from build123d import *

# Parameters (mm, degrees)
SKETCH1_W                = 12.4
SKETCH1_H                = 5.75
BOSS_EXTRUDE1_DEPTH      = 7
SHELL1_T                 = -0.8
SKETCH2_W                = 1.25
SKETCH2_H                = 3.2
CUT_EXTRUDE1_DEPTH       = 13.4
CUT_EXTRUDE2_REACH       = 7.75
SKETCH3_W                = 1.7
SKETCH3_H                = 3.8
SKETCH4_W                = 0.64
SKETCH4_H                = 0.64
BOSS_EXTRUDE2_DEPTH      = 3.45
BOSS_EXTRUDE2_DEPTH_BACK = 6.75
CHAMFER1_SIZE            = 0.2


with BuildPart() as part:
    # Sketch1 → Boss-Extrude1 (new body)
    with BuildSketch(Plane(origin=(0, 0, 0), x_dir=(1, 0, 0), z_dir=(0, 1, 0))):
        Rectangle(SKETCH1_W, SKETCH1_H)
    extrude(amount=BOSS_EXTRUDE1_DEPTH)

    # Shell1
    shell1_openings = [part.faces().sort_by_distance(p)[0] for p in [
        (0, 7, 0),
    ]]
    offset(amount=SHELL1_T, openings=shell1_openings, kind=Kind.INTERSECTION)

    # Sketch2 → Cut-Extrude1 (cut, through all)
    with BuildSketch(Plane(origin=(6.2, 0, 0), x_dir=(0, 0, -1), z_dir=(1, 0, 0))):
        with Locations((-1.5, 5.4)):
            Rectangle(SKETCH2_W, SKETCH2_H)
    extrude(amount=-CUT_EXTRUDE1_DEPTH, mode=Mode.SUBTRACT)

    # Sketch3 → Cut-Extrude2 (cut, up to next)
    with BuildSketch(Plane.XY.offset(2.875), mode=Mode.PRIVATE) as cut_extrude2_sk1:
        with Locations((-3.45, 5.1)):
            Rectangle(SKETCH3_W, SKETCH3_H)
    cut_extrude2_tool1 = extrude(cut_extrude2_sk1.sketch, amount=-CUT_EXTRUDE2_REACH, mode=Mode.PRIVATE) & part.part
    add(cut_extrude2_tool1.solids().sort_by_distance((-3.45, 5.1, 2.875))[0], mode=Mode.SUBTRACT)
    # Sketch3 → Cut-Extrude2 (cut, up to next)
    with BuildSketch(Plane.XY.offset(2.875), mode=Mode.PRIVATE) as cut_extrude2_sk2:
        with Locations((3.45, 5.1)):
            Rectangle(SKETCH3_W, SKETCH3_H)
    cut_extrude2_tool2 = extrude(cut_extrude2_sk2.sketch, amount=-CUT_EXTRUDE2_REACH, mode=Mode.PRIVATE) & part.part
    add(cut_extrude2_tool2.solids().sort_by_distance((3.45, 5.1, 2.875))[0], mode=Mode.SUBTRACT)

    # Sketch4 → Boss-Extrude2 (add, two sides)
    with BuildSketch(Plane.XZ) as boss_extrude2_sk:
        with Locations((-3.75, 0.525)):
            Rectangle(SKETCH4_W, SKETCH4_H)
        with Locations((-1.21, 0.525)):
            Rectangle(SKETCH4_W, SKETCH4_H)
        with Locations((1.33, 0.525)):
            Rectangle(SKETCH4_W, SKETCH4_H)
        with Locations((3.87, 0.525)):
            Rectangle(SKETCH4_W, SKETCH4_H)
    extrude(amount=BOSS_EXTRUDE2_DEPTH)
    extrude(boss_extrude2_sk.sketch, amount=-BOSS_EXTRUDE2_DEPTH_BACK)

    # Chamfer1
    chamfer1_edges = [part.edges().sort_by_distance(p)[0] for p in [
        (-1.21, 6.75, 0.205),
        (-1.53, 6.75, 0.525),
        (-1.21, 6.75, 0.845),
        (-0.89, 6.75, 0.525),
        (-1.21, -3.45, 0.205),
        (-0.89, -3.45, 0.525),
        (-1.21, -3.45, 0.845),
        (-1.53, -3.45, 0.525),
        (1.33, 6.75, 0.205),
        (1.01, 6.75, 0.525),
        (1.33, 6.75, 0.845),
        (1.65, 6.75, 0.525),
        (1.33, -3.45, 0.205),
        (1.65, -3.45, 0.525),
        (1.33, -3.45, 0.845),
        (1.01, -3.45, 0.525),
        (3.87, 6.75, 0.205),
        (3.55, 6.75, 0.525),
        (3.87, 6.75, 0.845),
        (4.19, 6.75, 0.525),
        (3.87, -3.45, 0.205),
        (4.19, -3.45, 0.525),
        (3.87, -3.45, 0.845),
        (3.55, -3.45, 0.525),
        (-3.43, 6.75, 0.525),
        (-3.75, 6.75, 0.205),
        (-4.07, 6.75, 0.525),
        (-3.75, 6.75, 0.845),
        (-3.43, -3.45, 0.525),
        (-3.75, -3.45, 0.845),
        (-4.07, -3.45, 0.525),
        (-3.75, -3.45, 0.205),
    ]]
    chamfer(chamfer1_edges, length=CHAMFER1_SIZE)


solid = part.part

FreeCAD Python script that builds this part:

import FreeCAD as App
import Part
import Sketcher
Q = App.Units.Quantity


def edges_at(feature, points):
    """Names of the edges that pass closest to the given points."""
    edges = feature.Shape.Edges
    near = lambda p: min(range(len(edges)), key=lambda i: edges[i].distToShape(Part.Vertex(*p))[0])
    return sorted({f"Edge{near(p) + 1}" for p in points})


def faces_at(feature, points):
    """Names of the faces that lie closest to the given points."""
    faces = feature.Shape.Faces
    near = lambda p: min(range(len(faces)), key=lambda i: faces[i].distToShape(Part.Vertex(*p))[0])
    return sorted({f"Face{near(p) + 1}" for p in points})


def add_polygon(sketch, points):
    """Adds a closed chain of lines whose ends are joined by coincident constraints."""
    first, n = sketch.GeometryCount, len(points)
    for a, b in zip(points, points[1:] + points[:1]):
        sketch.addGeometry(Part.LineSegment(App.Vector(*a, 0), App.Vector(*b, 0)), False)
    for i in range(n):
        sketch.addConstraint(Sketcher.Constraint("Coincident", first + i, 2, first + (i + 1) % n, 1))

doc = App.newDocument("Part")
body = doc.addObject("PartDesign::Body", "Body")

# Sketch on XZ plane
sketch1 = body.newObject("Sketcher::SketchObject", "Sketch")
sketch1.AttachmentSupport = (doc.getObject("XZ_Plane"), [""])
sketch1.MapMode = "FlatFace"
add_polygon(sketch1, [(-6.2, -2.875), (-6.2, 2.875), (6.2, 2.875), (6.2, -2.875)])  # lines 0-3
sketch1.addConstraint([
    Sketcher.Constraint("Vertical", 0),
    Sketcher.Constraint("Horizontal", 1),
    Sketcher.Constraint("Vertical", 2),
    Sketcher.Constraint("Horizontal", 3),
    Sketcher.Constraint("Symmetric", 0, 2, 2, 2, -1, 1),
    Sketcher.Constraint("DistanceX", 1, 1, 1, 2, Q("12.4 mm")),
    Sketcher.Constraint("DistanceY", 0, 1, 0, 2, Q("5.75 mm")),
])
pad1 = body.newObject("PartDesign::Pad", "Pad")
pad1.Profile = sketch1
pad1.Length = 7
pad1.Reversed = True
doc.recompute()

thickness = body.newObject("PartDesign::Thickness", "Thickness")
thickness.Base = (pad1, faces_at(pad1, [(0, 7, 0)]))
thickness.Value = 0.8
thickness.Reversed = True
thickness.Join = "Intersection"

# Sketch on YZ plane
sketch2 = body.newObject("Sketcher::SketchObject", "Sketch001")
sketch2.AttachmentSupport = (doc.getObject("YZ_Plane"), [""])
sketch2.MapMode = "FlatFace"
sketch2.AttachmentOffset = App.Placement(App.Vector(0, 0, 6.2), App.Rotation())
add_polygon(sketch2, [(7, 2.125), (3.8, 2.125), (3.8, 0.875), (7, 0.875)])  # lines 0-3
sketch2.addConstraint([
    Sketcher.Constraint("Horizontal", 0),
    Sketcher.Constraint("Vertical", 1),
    Sketcher.Constraint("Horizontal", 2),
    Sketcher.Constraint("Vertical", 3),
    Sketcher.Constraint("DistanceX", 0, 2, 0, 1, Q("3.2 mm")),
    Sketcher.Constraint("DistanceX", -1, 1, 2, 2, Q("7 mm")),
    Sketcher.Constraint("DistanceY", 1, 2, 1, 1, Q("1.25 mm")),
    Sketcher.Constraint("DistanceY", -1, 1, 0, 2, Q("2.125 mm")),
])
pocket1 = body.newObject("PartDesign::Pocket", "Pocket")
pocket1.Profile = sketch2
pocket1.Type = "ThroughAll"

# Sketch on XY plane
sketch3 = body.newObject("Sketcher::SketchObject", "Sketch002")
sketch3.AttachmentSupport = (doc.getObject("XY_Plane"), [""])
sketch3.MapMode = "FlatFace"
sketch3.AttachmentOffset = App.Placement(App.Vector(0, 0, 2.875), App.Rotation())
add_polygon(sketch3, [(-4.3, 7), (-4.3, 3.2), (-2.6, 3.2), (-2.6, 7)])  # lines 0-3
sketch3.addConstraint([
    Sketcher.Constraint("Vertical", 0),
    Sketcher.Constraint("Horizontal", 1),
    Sketcher.Constraint("Vertical", 2),
    Sketcher.Constraint("Horizontal", 3),
    Sketcher.Constraint("DistanceX", 1, 1, 1, 2, Q("1.7 mm")),
    Sketcher.Constraint("DistanceY", 0, 2, 0, 1, Q("3.8 mm")),
    Sketcher.Constraint("DistanceY", -1, 1, 2, 2, Q("7 mm")),
    Sketcher.Constraint("DistanceX", 0, 2, -1, 1, Q("4.3 mm")),
])
pocket2 = body.newObject("PartDesign::Pocket", "Pocket001")
pocket2.Profile = sketch3
pocket2.Length = 0.8

# Sketch on XY plane
sketch4 = body.newObject("Sketcher::SketchObject", "Sketch003")
sketch4.AttachmentSupport = (doc.getObject("XY_Plane"), [""])
sketch4.MapMode = "FlatFace"
sketch4.AttachmentOffset = App.Placement(App.Vector(0, 0, 2.875), App.Rotation())
add_polygon(sketch4, [(2.6, 7), (2.6, 3.2), (4.3, 3.2), (4.3, 7)])  # lines 0-3
sketch4.addConstraint([
    Sketcher.Constraint("Vertical", 0),
    Sketcher.Constraint("Horizontal", 1),
    Sketcher.Constraint("Vertical", 2),
    Sketcher.Constraint("Horizontal", 3),
    Sketcher.Constraint("DistanceX", 1, 1, 1, 2, Q("1.7 mm")),
    Sketcher.Constraint("DistanceY", 0, 2, 0, 1, Q("3.8 mm")),
    Sketcher.Constraint("DistanceY", -1, 1, 2, 2, Q("7 mm")),
    Sketcher.Constraint("DistanceX", -1, 1, 0, 2, Q("2.6 mm")),
])
pocket3 = body.newObject("PartDesign::Pocket", "Pocket002")
pocket3.Profile = sketch4
pocket3.Length = 0.8

# Sketch on XZ plane
sketch5 = body.newObject("Sketcher::SketchObject", "Sketch004")
sketch5.AttachmentSupport = (doc.getObject("XZ_Plane"), [""])
sketch5.MapMode = "FlatFace"
add_polygon(sketch5, [(-4.07, 0.845), (-4.07, 0.205), (-3.43, 0.205), (-3.43, 0.845)])  # lines 0-3
add_polygon(sketch5, [(-1.53, 0.845), (-1.53, 0.205), (-0.89, 0.205), (-0.89, 0.845)])  # lines 4-7
add_polygon(sketch5, [(1.01, 0.845), (1.01, 0.205), (1.65, 0.205), (1.65, 0.845)])  # lines 8-11
add_polygon(sketch5, [(3.55, 0.845), (3.55, 0.205), (4.19, 0.205), (4.19, 0.845)])  # lines 12-15
sketch5.addConstraint([
    Sketcher.Constraint("Vertical", 0),
    Sketcher.Constraint("Horizontal", 1),
    Sketcher.Constraint("Vertical", 2),
    Sketcher.Constraint("Horizontal", 3),
    Sketcher.Constraint("Vertical", 4),
    Sketcher.Constraint("Horizontal", 5),
    Sketcher.Constraint("Vertical", 6),
    Sketcher.Constraint("Horizontal", 7),
    Sketcher.Constraint("Vertical", 8),
    Sketcher.Constraint("Horizontal", 9),
    Sketcher.Constraint("Vertical", 10),
    Sketcher.Constraint("Horizontal", 11),
    Sketcher.Constraint("Vertical", 12),
    Sketcher.Constraint("Horizontal", 13),
    Sketcher.Constraint("Vertical", 14),
    Sketcher.Constraint("Horizontal", 15),
    Sketcher.Constraint("Horizontal", 1, 2, 4, 2),
    Sketcher.Constraint("Horizontal", 3, 2, 6, 2),
    Sketcher.Constraint("Horizontal", 5, 2, 8, 2),
    Sketcher.Constraint("Horizontal", 7, 2, 10, 2),
    Sketcher.Constraint("Horizontal", 9, 2, 12, 2),
    Sketcher.Constraint("Horizontal", 11, 2, 14, 2),
    Sketcher.Constraint("Equal", 3, 5),
    Sketcher.Constraint("Equal", 7, 9),
    Sketcher.Constraint("Equal", 11, 13),
    Sketcher.Constraint("Equal", 15, 0),
    Sketcher.Constraint("DistanceX", 1, 1, 1, 2, Q("0.64 mm")),
    Sketcher.Constraint("DistanceX", 1, 2, 4, 2, Q("1.9 mm")),
    Sketcher.Constraint("DistanceX", 5, 2, 8, 2, Q("1.9 mm")),
    Sketcher.Constraint("DistanceX", 9, 2, 12, 2, Q("1.9 mm")),
    Sketcher.Constraint("DistanceX", 0, 2, -1, 1, Q("4.07 mm")),
    Sketcher.Constraint("DistanceY", -1, 1, 0, 2, Q("0.205 mm")),
])
pad2 = body.newObject("PartDesign::Pad", "Pad001")
pad2.Profile = sketch5
pad2.Type = "TwoLengths"
pad2.Length = 3.45
pad2.Length2 = 6.75
doc.recompute()

chamfer = body.newObject("PartDesign::Chamfer", "Chamfer")
chamfer.Base = (pad2, edges_at(pad2, [
    (-1.21, 6.75, 0.205),
    (-1.53, 6.75, 0.525),
    (-1.21, 6.75, 0.845),
    (-0.89, 6.75, 0.525),
    (-1.21, -3.45, 0.205),
    (-0.89, -3.45, 0.525),
    (-1.21, -3.45, 0.845),
    (-1.53, -3.45, 0.525),
    (1.33, 6.75, 0.205),
    (1.01, 6.75, 0.525),
    (1.33, 6.75, 0.845),
    (1.65, 6.75, 0.525),
    (1.33, -3.45, 0.205),
    (1.65, -3.45, 0.525),
    (1.33, -3.45, 0.845),
    (1.01, -3.45, 0.525),
    (3.87, 6.75, 0.205),
    (3.55, 6.75, 0.525),
    (3.87, 6.75, 0.845),
    (4.19, 6.75, 0.525),
    (3.87, -3.45, 0.205),
    (4.19, -3.45, 0.525),
    (3.87, -3.45, 0.845),
    (3.55, -3.45, 0.525),
    (-3.43, 6.75, 0.525),
    (-3.75, 6.75, 0.205),
    (-4.07, 6.75, 0.525),
    (-3.75, 6.75, 0.845),
    (-3.43, -3.45, 0.525),
    (-3.75, -3.45, 0.845),
    (-4.07, -3.45, 0.525),
    (-3.75, -3.45, 0.205),
]))
chamfer.Size = 0.2

doc.recompute()
